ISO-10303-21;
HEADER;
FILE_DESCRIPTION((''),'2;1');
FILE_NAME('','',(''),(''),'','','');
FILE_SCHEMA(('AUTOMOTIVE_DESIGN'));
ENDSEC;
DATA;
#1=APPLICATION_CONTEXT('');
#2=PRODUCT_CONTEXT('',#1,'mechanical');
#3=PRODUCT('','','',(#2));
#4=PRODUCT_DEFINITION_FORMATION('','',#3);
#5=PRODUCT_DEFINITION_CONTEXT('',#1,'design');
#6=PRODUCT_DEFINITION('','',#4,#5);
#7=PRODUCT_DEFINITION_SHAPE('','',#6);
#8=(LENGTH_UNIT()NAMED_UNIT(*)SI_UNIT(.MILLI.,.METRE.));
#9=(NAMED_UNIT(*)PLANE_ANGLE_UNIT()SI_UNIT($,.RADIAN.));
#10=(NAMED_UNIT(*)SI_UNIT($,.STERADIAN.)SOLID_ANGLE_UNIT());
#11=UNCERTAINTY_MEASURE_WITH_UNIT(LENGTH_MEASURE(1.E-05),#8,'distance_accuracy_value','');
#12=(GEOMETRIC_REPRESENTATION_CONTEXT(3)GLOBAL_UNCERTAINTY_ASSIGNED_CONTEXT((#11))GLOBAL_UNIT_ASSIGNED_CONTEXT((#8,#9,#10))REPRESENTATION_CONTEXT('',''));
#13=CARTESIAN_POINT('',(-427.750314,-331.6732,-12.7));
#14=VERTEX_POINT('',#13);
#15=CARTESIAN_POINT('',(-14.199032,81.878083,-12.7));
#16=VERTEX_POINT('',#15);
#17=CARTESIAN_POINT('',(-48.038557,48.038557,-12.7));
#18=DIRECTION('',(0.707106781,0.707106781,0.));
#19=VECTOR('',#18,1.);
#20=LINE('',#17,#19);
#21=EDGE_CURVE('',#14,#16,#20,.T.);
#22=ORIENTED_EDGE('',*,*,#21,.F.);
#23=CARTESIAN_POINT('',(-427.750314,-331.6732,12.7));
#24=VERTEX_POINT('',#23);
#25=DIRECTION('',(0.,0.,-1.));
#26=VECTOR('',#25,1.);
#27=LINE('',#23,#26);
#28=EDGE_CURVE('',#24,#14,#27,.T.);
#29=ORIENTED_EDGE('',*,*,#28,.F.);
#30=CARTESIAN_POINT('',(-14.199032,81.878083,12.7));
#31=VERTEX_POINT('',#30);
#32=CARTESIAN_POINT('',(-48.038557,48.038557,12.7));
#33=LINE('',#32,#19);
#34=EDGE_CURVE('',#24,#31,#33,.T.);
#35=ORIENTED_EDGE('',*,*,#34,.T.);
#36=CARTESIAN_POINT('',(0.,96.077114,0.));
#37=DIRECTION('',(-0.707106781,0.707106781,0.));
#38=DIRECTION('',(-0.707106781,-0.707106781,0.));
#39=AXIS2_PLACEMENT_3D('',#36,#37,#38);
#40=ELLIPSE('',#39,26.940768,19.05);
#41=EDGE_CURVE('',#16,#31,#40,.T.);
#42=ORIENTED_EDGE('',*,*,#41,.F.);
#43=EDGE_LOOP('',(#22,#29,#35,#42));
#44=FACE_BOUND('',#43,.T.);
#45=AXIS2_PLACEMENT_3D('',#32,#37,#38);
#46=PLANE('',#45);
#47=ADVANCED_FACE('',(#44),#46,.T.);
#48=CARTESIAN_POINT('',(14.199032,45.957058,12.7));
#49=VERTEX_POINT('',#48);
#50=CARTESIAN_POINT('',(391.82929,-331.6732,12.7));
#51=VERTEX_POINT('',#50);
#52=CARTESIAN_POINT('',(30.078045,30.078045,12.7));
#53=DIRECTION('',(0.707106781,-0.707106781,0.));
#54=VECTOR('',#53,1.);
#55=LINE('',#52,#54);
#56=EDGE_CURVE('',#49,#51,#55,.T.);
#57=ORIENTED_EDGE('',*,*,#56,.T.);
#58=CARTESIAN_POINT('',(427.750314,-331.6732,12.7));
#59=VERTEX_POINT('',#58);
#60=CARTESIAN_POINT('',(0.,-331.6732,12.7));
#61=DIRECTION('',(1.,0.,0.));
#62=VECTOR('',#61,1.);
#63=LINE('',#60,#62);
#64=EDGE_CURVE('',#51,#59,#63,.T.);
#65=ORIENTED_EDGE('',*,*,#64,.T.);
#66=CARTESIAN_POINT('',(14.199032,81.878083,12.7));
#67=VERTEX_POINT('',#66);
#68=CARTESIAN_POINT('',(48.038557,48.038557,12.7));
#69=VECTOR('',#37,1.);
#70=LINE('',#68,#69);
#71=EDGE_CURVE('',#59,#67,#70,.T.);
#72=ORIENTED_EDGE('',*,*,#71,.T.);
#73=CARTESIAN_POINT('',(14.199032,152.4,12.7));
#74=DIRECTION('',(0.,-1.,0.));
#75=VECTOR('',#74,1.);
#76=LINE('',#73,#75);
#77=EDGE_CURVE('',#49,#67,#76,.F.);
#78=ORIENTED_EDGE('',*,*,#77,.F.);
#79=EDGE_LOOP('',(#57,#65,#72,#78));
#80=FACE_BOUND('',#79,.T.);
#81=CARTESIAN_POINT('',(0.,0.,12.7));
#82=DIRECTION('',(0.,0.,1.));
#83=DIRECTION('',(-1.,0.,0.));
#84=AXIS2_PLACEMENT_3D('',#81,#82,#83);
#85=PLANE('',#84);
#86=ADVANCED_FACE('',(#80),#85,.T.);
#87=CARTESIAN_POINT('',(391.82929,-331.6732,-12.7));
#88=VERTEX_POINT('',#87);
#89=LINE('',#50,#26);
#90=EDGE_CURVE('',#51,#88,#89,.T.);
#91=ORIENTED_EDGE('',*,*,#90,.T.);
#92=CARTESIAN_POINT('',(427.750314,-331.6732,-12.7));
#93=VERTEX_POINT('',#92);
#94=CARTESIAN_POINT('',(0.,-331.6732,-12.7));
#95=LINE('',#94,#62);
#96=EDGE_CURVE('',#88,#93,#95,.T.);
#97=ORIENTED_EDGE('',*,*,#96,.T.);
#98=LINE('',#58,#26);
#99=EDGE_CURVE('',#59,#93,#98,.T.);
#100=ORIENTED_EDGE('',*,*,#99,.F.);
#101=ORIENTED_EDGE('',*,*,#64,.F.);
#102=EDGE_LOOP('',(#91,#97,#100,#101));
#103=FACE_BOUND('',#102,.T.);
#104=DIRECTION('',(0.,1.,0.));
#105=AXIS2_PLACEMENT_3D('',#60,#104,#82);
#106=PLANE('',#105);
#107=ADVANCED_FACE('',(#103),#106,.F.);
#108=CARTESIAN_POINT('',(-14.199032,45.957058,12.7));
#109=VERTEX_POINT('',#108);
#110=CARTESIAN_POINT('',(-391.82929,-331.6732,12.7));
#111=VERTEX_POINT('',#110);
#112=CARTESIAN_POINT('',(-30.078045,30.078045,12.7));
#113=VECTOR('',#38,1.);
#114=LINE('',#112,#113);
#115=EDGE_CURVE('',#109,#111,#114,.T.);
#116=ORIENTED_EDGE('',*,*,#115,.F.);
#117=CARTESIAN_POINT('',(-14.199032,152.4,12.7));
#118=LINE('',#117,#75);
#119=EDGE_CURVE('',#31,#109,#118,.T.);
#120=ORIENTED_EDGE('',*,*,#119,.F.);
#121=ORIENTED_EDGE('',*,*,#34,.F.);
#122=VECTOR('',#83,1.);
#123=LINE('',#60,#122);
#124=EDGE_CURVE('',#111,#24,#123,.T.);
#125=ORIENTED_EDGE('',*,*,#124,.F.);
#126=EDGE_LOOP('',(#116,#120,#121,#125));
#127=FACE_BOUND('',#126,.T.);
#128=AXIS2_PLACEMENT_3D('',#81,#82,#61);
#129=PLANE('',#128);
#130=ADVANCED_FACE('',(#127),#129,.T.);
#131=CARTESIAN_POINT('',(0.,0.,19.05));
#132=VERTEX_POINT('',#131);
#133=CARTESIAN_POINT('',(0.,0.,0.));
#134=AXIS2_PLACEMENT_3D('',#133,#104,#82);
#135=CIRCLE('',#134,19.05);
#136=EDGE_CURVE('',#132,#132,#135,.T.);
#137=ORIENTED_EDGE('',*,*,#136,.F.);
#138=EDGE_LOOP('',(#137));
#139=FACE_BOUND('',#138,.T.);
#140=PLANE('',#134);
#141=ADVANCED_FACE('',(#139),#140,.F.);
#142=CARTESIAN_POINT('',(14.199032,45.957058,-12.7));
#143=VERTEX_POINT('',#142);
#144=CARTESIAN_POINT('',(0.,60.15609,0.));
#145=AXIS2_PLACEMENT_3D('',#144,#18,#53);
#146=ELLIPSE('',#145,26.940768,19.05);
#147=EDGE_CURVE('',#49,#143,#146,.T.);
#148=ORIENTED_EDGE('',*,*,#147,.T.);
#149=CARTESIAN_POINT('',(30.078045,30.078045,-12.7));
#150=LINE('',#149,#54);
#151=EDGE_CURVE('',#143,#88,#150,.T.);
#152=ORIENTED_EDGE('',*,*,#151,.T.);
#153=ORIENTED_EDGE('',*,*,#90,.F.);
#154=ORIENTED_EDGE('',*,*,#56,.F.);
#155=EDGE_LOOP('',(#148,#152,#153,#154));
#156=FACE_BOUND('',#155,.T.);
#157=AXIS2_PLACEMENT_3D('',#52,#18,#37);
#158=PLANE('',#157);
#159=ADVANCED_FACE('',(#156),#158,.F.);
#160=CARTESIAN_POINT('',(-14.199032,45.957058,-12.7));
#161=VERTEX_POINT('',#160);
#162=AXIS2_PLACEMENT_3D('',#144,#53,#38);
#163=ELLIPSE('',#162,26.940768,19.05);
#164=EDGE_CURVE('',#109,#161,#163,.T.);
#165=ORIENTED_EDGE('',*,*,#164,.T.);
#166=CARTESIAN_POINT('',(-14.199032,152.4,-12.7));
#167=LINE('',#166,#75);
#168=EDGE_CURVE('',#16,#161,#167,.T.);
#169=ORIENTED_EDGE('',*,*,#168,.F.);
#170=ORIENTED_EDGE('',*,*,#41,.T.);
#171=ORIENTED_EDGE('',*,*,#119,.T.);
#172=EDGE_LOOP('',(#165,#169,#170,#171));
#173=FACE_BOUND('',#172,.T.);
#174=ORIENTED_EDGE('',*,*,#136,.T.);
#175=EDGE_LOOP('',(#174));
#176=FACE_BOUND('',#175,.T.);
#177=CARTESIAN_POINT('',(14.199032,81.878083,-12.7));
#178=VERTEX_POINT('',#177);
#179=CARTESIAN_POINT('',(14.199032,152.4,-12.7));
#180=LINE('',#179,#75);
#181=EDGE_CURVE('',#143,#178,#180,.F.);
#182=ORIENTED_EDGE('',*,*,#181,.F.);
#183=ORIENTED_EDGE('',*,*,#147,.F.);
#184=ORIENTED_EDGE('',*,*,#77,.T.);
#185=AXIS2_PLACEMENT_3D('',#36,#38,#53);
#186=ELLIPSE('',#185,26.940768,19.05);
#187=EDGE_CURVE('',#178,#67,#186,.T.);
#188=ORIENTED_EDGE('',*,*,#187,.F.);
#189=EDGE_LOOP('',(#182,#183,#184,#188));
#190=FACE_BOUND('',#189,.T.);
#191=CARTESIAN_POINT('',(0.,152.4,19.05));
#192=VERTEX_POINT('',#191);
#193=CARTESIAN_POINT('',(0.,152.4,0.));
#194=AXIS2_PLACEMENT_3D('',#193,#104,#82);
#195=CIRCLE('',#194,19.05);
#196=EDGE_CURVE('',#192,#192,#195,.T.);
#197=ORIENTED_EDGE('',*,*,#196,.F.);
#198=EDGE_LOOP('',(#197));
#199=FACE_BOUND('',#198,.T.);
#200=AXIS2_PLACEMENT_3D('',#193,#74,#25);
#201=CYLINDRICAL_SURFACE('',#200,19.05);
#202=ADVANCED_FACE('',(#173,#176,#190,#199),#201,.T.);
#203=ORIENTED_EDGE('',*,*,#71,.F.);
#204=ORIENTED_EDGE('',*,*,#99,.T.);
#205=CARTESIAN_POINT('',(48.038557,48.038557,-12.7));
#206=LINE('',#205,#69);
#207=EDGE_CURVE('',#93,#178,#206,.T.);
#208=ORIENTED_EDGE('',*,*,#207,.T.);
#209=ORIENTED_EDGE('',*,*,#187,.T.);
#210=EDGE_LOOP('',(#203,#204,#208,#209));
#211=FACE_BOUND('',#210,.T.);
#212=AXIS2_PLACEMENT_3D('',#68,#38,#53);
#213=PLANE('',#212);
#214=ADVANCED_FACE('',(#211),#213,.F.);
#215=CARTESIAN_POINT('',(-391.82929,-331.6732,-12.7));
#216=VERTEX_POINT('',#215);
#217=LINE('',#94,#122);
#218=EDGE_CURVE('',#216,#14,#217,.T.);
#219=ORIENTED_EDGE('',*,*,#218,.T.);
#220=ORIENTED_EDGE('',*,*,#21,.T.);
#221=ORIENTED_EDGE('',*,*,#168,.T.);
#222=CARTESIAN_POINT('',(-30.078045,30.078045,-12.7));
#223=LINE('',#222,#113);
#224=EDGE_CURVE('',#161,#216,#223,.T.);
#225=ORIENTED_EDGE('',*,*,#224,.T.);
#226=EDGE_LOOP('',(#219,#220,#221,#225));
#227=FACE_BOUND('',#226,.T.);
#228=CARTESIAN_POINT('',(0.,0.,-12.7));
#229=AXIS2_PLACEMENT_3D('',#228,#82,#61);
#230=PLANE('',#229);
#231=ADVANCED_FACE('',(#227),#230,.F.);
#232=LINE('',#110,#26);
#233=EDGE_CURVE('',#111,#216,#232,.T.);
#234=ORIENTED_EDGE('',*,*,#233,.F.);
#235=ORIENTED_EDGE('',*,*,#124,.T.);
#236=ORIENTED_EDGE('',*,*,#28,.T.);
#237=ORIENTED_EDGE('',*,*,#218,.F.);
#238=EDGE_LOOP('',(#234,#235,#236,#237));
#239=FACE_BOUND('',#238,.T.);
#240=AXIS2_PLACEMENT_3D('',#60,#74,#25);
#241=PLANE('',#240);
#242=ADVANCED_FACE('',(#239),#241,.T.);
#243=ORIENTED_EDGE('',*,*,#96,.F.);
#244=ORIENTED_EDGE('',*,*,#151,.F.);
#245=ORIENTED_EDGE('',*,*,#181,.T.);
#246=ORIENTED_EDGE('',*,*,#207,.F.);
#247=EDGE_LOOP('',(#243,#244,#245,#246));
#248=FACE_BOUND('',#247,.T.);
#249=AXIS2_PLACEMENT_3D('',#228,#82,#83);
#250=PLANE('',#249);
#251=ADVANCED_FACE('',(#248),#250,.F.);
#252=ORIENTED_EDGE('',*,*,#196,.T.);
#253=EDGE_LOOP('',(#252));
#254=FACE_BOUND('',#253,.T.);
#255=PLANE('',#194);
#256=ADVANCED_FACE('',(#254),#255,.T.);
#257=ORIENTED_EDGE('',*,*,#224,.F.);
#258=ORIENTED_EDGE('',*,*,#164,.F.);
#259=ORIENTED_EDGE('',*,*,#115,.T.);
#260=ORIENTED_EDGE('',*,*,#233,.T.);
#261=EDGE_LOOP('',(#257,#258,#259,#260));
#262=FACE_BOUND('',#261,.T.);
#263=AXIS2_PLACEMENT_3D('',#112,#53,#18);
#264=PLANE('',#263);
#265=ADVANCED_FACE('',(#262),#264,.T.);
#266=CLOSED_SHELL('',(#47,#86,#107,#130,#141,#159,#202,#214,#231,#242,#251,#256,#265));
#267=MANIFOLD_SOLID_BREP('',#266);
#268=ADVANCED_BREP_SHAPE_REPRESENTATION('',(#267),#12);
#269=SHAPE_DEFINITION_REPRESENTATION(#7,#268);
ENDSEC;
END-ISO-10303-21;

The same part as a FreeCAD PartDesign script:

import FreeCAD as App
import Part
import Sketcher
from FreeCAD import Vector
Q = App.Units.Quantity


def add_polygon(sketch, points):
    """Adds a closed chain of lines whose ends are joined by coincident constraints."""
    first, n = sketch.GeometryCount, len(points)
    for a, b in zip(points, points[1:] + points[:1]):
        sketch.addGeometry(Part.LineSegment(App.Vector(*a, 0), App.Vector(*b, 0)), False)
    for i in range(n):
        sketch.addConstraint(Sketcher.Constraint("Coincident", first + i, 2, first + (i + 1) % n, 1))

doc = App.newDocument("Part")
body = doc.addObject("PartDesign::Body", "Body")

# Sketch on XZ plane
sketch1 = body.newObject("Sketcher::SketchObject", "Sketch")
sketch1.AttachmentSupport = (doc.getObject("XZ_Plane"), [""])
sketch1.MapMode = "FlatFace"
sketch1.addGeometry(Part.Circle(Vector(0, 0, 0), Vector(0, 0, 1), 19), False)
sketch1.addConstraint(Sketcher.Constraint("Coincident", 0, 3, -1, 1))
sketch1.addConstraint(Sketcher.Constraint("Diameter", 0, Q("1.5 in")))
pad1 = body.newObject("PartDesign::Pad", "Pad")
pad1.Profile = sketch1
pad1.Length = Q("6 in")
pad1.Reversed = True

# Sketch on XY plane
sketch2 = body.newObject("Sketcher::SketchObject", "Sketch001")
sketch2.AttachmentSupport = (doc.getObject("XY_Plane"), [""])
sketch2.MapMode = "FlatFace"
add_polygon(sketch2, [(-6, 90), (-428, -332), (-392, -332), (12, 72)])  # lines 0-3
sketch2.addConstraint(Sketcher.Constraint("Horizontal", 1))
sketch2.addConstraint(Sketcher.Constraint("Parallel", 0, 2))
sketch2.addConstraint(Sketcher.Constraint("Perpendicular", 2, 3))
sketch2.addConstraint(Sketcher.Constraint("Distance", 3, Q("1 in")))
sketch2.addConstraint(Sketcher.Constraint("Angle", 0, Q("-135 deg")))
sketch2.addConstraint(Sketcher.Constraint("DistanceY", 0, 2, -1, 1, Q("13.058 in")))
sketch2.addConstraint(Sketcher.Constraint("Distance", 0, 596.404461))
sketch2.addConstraint(Sketcher.Constraint("DistanceX", 1, 2, -1, 1, 391.82929))
pad2 = body.newObject("PartDesign::Pad", "Pad001")
pad2.Profile = sketch2
pad2.Length = Q("1 in")
pad2.Midplane = True
doc.recompute()

mirrored = body.newObject("PartDesign::Mirrored", "Mirrored")
mirrored.Originals = [pad2]
mirrored.MirrorPlane = (doc.getObject("YZ_Plane"), [""])
body.Tip = mirrored

doc.recompute()
